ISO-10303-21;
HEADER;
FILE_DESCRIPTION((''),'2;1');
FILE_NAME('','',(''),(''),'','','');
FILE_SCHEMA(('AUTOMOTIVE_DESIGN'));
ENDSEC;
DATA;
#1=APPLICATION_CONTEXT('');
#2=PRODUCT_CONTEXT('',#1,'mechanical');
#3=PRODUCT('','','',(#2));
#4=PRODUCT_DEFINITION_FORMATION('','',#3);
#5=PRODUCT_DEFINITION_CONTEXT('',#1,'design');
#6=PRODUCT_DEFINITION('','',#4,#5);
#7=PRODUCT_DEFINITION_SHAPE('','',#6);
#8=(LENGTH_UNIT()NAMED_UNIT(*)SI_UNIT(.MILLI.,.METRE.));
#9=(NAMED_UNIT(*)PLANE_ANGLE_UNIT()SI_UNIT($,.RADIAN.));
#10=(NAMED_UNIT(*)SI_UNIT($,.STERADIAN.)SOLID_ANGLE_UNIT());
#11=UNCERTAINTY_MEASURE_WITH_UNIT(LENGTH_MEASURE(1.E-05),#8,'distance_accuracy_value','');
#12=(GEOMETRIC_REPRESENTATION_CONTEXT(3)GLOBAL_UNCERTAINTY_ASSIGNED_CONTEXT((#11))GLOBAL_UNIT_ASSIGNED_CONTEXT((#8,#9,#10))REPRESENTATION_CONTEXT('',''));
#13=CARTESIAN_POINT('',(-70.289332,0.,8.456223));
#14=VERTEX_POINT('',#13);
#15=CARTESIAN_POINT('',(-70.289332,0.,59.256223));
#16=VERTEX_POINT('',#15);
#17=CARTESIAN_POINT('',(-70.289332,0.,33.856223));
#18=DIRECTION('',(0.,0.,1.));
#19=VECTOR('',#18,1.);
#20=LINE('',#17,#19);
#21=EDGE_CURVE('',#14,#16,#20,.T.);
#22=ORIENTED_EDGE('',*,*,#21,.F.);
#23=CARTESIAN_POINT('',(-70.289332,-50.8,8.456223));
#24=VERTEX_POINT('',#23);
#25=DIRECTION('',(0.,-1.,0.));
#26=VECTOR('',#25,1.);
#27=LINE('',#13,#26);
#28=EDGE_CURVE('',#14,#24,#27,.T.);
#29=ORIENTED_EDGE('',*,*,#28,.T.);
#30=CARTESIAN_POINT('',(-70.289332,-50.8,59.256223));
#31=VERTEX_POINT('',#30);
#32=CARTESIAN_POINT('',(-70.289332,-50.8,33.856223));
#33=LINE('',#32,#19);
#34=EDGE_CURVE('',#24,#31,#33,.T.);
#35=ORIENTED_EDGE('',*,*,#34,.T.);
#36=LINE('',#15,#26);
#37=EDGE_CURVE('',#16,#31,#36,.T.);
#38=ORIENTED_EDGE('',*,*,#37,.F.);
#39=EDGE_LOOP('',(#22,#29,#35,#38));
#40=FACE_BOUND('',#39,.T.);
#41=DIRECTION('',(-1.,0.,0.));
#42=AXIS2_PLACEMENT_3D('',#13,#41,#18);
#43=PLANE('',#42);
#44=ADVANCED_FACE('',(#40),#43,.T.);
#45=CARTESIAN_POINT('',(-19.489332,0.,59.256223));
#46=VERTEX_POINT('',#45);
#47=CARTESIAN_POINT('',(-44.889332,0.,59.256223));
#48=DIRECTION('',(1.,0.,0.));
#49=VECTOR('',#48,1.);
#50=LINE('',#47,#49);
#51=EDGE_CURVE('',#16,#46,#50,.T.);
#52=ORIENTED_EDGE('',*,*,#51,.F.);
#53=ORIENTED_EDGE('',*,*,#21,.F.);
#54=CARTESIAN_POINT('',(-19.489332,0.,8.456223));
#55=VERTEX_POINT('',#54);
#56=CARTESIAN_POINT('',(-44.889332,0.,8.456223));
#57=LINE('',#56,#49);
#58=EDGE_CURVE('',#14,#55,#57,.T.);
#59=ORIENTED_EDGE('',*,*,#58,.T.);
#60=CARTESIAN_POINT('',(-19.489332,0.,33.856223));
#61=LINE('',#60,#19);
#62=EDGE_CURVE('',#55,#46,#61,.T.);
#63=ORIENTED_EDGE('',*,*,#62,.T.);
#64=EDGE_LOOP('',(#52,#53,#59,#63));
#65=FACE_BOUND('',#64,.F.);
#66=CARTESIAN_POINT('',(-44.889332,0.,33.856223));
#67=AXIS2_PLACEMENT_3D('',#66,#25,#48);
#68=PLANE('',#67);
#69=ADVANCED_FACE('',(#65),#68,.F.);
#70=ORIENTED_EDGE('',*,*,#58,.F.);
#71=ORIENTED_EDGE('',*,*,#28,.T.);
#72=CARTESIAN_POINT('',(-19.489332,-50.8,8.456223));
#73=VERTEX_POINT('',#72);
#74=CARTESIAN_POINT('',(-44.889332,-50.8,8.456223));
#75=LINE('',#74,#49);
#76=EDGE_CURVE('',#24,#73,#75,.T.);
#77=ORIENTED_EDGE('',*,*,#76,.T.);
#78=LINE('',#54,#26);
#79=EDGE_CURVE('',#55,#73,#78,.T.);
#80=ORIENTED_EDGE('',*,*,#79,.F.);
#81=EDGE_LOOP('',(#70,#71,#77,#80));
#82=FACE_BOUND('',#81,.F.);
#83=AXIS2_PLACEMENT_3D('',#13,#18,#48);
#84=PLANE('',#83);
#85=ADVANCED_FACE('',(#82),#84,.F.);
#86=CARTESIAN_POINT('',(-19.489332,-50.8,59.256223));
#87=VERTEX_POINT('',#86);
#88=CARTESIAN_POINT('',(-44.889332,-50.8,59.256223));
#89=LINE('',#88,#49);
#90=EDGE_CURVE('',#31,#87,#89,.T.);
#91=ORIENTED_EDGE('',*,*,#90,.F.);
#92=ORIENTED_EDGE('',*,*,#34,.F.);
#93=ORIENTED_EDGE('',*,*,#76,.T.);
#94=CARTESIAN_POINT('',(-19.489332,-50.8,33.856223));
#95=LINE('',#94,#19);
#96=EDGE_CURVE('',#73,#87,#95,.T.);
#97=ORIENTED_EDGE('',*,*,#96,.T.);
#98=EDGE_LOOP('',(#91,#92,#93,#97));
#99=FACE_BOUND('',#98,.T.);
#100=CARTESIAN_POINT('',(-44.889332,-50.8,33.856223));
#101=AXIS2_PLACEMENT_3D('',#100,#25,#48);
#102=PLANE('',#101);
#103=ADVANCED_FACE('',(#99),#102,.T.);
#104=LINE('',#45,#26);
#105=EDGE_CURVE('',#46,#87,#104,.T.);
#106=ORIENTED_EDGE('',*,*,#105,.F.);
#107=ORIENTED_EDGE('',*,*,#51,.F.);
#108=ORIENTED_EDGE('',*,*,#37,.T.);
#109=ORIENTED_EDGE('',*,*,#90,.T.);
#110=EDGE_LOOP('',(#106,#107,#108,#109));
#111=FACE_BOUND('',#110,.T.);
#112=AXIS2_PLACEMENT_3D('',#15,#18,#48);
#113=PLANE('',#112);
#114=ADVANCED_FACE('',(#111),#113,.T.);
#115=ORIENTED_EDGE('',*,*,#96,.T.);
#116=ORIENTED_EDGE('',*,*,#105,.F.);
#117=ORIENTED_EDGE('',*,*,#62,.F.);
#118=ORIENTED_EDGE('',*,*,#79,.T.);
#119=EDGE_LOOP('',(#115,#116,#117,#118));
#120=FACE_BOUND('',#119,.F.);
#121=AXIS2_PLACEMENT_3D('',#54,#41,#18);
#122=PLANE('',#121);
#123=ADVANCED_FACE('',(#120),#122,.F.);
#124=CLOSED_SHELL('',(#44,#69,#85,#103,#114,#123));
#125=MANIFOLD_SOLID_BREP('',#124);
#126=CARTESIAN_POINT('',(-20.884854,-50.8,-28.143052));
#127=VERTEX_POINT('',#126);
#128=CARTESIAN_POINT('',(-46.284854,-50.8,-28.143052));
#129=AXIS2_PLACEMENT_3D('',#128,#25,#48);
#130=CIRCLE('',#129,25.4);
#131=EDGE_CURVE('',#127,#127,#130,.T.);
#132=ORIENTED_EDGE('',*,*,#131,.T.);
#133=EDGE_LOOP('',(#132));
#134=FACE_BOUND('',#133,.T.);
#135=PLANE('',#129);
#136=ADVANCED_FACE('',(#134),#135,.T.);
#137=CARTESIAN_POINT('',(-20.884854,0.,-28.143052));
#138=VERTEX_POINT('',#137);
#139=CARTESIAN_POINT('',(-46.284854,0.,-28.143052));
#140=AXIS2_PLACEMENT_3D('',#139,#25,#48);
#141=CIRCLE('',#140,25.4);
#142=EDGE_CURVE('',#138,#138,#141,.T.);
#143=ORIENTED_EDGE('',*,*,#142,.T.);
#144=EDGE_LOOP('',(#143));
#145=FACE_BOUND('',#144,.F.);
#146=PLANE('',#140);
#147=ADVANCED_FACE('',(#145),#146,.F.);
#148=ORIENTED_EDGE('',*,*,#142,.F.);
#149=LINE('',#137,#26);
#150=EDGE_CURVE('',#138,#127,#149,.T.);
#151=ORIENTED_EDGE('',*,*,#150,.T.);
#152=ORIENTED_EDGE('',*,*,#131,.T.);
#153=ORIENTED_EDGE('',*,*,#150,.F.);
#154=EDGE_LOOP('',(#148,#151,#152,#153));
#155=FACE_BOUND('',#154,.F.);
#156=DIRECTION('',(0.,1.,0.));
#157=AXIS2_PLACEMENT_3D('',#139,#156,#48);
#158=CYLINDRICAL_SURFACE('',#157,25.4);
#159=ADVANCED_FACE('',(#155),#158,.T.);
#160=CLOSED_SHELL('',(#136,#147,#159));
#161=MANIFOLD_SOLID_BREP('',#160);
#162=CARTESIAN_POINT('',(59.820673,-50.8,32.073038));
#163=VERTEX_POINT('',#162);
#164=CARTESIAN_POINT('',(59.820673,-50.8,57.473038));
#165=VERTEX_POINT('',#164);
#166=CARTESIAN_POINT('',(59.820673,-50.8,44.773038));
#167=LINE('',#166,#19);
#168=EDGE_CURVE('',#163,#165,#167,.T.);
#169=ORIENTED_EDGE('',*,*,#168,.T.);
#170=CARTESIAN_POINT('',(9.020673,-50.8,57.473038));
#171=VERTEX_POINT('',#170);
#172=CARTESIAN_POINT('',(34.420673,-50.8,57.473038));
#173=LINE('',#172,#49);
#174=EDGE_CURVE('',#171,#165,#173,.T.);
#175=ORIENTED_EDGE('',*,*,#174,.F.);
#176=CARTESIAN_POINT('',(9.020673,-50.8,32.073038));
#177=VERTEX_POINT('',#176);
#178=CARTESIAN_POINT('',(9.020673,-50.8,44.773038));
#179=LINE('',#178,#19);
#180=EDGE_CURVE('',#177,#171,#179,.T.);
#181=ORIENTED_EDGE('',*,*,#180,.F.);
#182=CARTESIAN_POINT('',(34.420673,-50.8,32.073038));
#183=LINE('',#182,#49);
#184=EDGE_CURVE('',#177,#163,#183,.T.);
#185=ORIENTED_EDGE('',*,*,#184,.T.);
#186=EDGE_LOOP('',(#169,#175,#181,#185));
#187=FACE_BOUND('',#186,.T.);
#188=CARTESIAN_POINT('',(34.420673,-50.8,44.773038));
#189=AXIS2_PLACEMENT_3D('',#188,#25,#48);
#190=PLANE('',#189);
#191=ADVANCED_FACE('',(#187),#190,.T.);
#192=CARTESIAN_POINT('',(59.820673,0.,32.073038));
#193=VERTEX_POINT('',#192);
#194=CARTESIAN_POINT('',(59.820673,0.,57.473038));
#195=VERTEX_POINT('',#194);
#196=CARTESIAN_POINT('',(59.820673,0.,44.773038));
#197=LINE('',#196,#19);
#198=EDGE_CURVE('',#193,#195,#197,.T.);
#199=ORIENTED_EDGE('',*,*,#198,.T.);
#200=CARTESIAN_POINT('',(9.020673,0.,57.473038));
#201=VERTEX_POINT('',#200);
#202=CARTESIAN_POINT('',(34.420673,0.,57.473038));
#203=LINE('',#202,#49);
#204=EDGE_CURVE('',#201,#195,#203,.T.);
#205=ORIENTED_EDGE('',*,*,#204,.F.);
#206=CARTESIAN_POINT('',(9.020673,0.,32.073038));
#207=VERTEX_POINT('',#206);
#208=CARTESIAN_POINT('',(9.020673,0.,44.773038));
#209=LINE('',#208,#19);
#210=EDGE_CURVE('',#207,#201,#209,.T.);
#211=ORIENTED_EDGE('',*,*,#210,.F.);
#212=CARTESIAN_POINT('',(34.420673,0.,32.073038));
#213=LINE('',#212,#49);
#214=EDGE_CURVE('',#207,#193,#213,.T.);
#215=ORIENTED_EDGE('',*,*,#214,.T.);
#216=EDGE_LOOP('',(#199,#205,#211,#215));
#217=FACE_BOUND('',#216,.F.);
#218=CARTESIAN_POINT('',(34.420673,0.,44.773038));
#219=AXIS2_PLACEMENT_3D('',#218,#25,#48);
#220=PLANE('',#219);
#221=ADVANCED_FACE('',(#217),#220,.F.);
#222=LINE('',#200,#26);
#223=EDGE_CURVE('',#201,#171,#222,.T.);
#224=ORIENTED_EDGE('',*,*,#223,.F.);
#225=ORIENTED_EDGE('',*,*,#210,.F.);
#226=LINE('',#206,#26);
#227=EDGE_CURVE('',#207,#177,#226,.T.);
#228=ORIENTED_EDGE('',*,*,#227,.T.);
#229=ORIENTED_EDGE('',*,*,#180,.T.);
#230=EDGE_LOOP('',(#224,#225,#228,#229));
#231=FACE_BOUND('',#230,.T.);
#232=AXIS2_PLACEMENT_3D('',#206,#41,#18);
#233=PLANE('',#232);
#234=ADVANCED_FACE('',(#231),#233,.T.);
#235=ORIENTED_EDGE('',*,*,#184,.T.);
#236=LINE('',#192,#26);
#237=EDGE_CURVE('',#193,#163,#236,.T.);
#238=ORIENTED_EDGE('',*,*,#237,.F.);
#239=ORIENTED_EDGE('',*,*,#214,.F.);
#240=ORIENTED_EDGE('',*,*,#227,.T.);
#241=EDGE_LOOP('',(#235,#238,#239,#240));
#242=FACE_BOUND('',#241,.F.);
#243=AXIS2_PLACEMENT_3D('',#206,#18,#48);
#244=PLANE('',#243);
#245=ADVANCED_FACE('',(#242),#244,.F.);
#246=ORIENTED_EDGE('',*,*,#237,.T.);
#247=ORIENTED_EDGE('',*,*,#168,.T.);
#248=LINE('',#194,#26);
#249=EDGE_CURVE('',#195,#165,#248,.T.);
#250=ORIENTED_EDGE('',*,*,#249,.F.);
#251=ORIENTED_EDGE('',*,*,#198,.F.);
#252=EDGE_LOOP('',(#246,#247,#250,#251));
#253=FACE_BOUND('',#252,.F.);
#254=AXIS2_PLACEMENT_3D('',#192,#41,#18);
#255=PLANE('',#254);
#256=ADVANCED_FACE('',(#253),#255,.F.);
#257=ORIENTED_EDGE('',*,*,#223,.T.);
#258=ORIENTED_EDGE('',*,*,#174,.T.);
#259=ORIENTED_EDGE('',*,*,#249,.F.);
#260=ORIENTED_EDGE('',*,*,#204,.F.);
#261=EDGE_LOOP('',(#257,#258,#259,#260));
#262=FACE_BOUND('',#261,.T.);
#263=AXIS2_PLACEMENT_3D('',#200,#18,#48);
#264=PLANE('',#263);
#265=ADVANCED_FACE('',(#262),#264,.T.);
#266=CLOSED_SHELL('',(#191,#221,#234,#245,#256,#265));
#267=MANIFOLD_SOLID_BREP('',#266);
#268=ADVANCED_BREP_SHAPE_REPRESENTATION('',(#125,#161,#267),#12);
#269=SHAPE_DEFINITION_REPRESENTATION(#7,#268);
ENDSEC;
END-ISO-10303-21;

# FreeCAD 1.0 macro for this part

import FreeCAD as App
import Part
import Sketcher

V = App.Vector
Q = App.Units.Quantity


def add_polygon(sketch, points):
    """Adds a closed chain of lines whose ends are joined by coincident constraints."""
    first, n = sketch.GeometryCount, len(points)
    for a, b in zip(points, points[1:] + points[:1]):
        sketch.addGeometry(Part.LineSegment(App.Vector(*a, 0), App.Vector(*b, 0)), False)
    for i in range(n):
        sketch.addConstraint(Sketcher.Constraint("Coincident", first + i, 2, first + (i + 1) % n, 1))

doc = App.newDocument("Part")
body = doc.addObject("PartDesign::Body", "Body")

# Sketch on XZ plane
sketch1 = body.newObject("Sketcher::SketchObject", "Sketch")
sketch1.AttachmentSupport = (doc.getObject("XZ_Plane"), [""])
sketch1.MapMode = "FlatFace"
add_polygon(sketch1, [(-70, 59), (-70, 8), (-19, 8), (-19, 59)])  # lines 0-3
sketch1.addConstraint(Sketcher.Constraint("Vertical", 0))
sketch1.addConstraint(Sketcher.Constraint("Horizontal", 1))
sketch1.addConstraint(Sketcher.Constraint("Vertical", 2))
sketch1.addConstraint(Sketcher.Constraint("Horizontal", 3))
sketch1.addConstraint(Sketcher.Constraint("Equal", 3, 0))
sketch1.addConstraint(Sketcher.Constraint("DistanceX", 1, 1, 1, 2, Q("2 in")))
sketch1.addConstraint(Sketcher.Constraint("DistanceX", 0, 2, -1, 1, Q("70.289332 mm")))
sketch1.addConstraint(Sketcher.Constraint("DistanceY", -1, 1, 0, 2, Q("8.456223 mm")))
pad1 = body.newObject("PartDesign::Pad", "Pad")
pad1.Profile = sketch1
pad1.Length = Q("2 in")
body2 = doc.addObject("PartDesign::Body", "Body001")

# Sketch on XZ plane
sketch2 = body2.newObject("Sketcher::SketchObject", "Sketch001")
sketch2.AttachmentSupport = (doc.getObject("XZ_Plane001"), [""])
sketch2.MapMode = "FlatFace"
add_polygon(sketch2, [(9, 57), (9, 32), (60, 32), (60, 57)])  # lines 0-3
sketch2.addConstraint(Sketcher.Constraint("Vertical", 0))
sketch2.addConstraint(Sketcher.Constraint("Horizontal", 1))
sketch2.addConstraint(Sketcher.Constraint("Vertical", 2))
sketch2.addConstraint(Sketcher.Constraint("Horizontal", 3))
sketch2.addConstraint(Sketcher.Constraint("DistanceX", 1, 1, 1, 2, Q("2 in")))
sketch2.addConstraint(Sketcher.Constraint("DistanceY", 0, 2, 0, 1, Q("1 in")))
sketch2.addConstraint(Sketcher.Constraint("DistanceY", -1, 1, 2, 2, Q("57.473038 mm")))
sketch2.addConstraint(Sketcher.Constraint("DistanceX", -1, 1, 0, 2, Q("9.020673 mm")))
pad2 = body2.newObject("PartDesign::Pad", "Pad001")
pad2.Profile = sketch2
pad2.Length = Q("2 in")
body3 = doc.addObject("PartDesign::Body", "Body002")

# Sketch on XZ plane
sketch3 = body3.newObject("Sketcher::SketchObject", "Sketch002")
sketch3.AttachmentSupport = (doc.getObject("XZ_Plane002"), [""])
sketch3.MapMode = "FlatFace"
sketch3.addGeometry(Part.Circle(V(-46, -28, 0), V(0, 0, 1), 25), False)
sketch3.addConstraint(Sketcher.Constraint("Diameter", 0, Q("2 in")))
sketch3.addConstraint(Sketcher.Constraint("DistanceX", 0, 3, -1, 1, Q("46.284854 mm")))
sketch3.addConstraint(Sketcher.Constraint("DistanceY", 0, 3, -1, 1, Q("28.143052 mm")))
pad3 = body3.newObject("PartDesign::Pad", "Pad002")
pad3.Profile = sketch3
pad3.Length = Q("2 in")

doc.recompute()
